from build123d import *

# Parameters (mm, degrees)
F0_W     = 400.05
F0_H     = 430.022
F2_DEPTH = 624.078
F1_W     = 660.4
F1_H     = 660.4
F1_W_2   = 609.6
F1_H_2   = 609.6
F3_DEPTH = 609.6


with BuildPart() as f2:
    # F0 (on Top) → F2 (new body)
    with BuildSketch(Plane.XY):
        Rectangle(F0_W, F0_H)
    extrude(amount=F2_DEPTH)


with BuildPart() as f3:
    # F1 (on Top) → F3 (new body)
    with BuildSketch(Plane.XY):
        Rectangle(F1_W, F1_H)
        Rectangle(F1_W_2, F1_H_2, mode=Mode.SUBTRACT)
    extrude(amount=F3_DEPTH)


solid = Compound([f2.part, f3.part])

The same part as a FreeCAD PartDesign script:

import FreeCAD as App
import Part
import Sketcher
Q = App.Units.Quantity

doc = App.newDocument("Part")
params = doc.addObject("Spreadsheet::Sheet", "Params")
for row, (alias, value) in enumerate([
    ("sketch1_width", "15.75 in"),
    ("sketch1_height", "16.93 in"),
    ("pad1_length", "24.57 in"),
    ("sketch2_width", "26 in"),
    ("sketch2_width2", "24 in"),
    ("pad2_length", "24 in"),
], start=1):
    params.set(f"A{row}", alias)
    params.set(f"B{row}", "=" + value)
    params.setAlias(f"B{row}", alias)

body = doc.addObject("PartDesign::Body", "Body")

# Sketch on XY plane
sketch1 = body.newObject("Sketcher::SketchObject", "Sketch")
sketch1.AttachmentSupport = (doc.getObject("XY_Plane"), [""])
sketch1.MapMode = "FlatFace"
sketch1.addGeometry(Part.LineSegment(App.Vector(-200, 215, 0), App.Vector(-200, -215, 0)), False)
sketch1.addGeometry(Part.LineSegment(App.Vector(-200, -215, 0), App.Vector(200, -215, 0)), False)
sketch1.addGeometry(Part.LineSegment(App.Vector(200, -215, 0), App.Vector(200, 215, 0)), False)
sketch1.addGeometry(Part.LineSegment(App.Vector(200, 215, 0), App.Vector(-200, 215, 0)), False)
sketch1.addConstraint(Sketcher.Constraint("Coincident", 0, 2, 1, 1))
sketch1.addConstraint(Sketcher.Constraint("Coincident", 1, 2, 2, 1))
sketch1.addConstraint(Sketcher.Constraint("Coincident", 2, 2, 3, 1))
sketch1.addConstraint(Sketcher.Constraint("Coincident", 3, 2, 0, 1))
sketch1.addConstraint(Sketcher.Constraint("Vertical", 0))
sketch1.addConstraint(Sketcher.Constraint("Horizontal", 1))
sketch1.addConstraint(Sketcher.Constraint("Vertical", 2))
sketch1.addConstraint(Sketcher.Constraint("Horizontal", 3))
sketch1.addConstraint(Sketcher.Constraint("Symmetric", 0, 2, 2, 2, -1, 1))
sketch1.addConstraint(Sketcher.Constraint("DistanceX", 1, 1, 1, 2, Q("15.75 in")))
sketch1.addConstraint(Sketcher.Constraint("DistanceY", 0, 2, 0, 1, Q("16.93 in")))
sketch1.setExpression("Constraints[9]", "Params.sketch1_width")
sketch1.setExpression("Constraints[10]", "Params.sketch1_height")
pad1 = body.newObject("PartDesign::Pad", "Pad")
pad1.Profile = sketch1
pad1.setExpression("Length", "Params.pad1_length")
body2 = doc.addObject("PartDesign::Body", "Body001")

# Sketch on XY plane
sketch2 = body2.newObject("Sketcher::SketchObject", "Sketch001")
sketch2.AttachmentSupport = (doc.getObject("XY_Plane001"), [""])
sketch2.MapMode = "FlatFace"
sketch2.addGeometry(Part.LineSegment(App.Vector(-330, 330, 0), App.Vector(-330, -330, 0)), False)
sketch2.addGeometry(Part.LineSegment(App.Vector(-330, -330, 0), App.Vector(330, -330, 0)), False)
sketch2.addGeometry(Part.LineSegment(App.Vector(330, -330, 0), App.Vector(330, 330, 0)), False)
sketch2.addGeometry(Part.LineSegment(App.Vector(330, 330, 0), App.Vector(-330, 330, 0)), False)
sketch2.addGeometry(Part.LineSegment(App.Vector(305, -305, 0), App.Vector(-305, -305, 0)), False)
sketch2.addGeometry(Part.LineSegment(App.Vector(-305, -305, 0), App.Vector(-305, 305, 0)), False)
sketch2.addGeometry(Part.LineSegment(App.Vector(-305, 305, 0), App.Vector(305, 305, 0)), False)
sketch2.addGeometry(Part.LineSegment(App.Vector(305, 305, 0), App.Vector(305, -305, 0)), False)
sketch2.addConstraint(Sketcher.Constraint("Coincident", 0, 2, 1, 1))
sketch2.addConstraint(Sketcher.Constraint("Coincident", 1, 2, 2, 1))
sketch2.addConstraint(Sketcher.Constraint("Coincident", 2, 2, 3, 1))
sketch2.addConstraint(Sketcher.Constraint("Coincident", 3, 2, 0, 1))
sketch2.addConstraint(Sketcher.Constraint("Coincident", 4, 2, 5, 1))
sketch2.addConstraint(Sketcher.Constraint("Coincident", 5, 2, 6, 1))
sketch2.addConstraint(Sketcher.Constraint("Coincident", 6, 2, 7, 1))
sketch2.addConstraint(Sketcher.Constraint("Coincident", 7, 2, 4, 1))
sketch2.addConstraint(Sketcher.Constraint("Vertical", 0))
sketch2.addConstraint(Sketcher.Constraint("Horizontal", 1))
sketch2.addConstraint(Sketcher.Constraint("Vertical", 2))
sketch2.addConstraint(Sketcher.Constraint("Horizontal", 3))
sketch2.addConstraint(Sketcher.Constraint("Horizontal", 4))
sketch2.addConstraint(Sketcher.Constraint("Vertical", 5))
sketch2.addConstraint(Sketcher.Constraint("Horizontal", 6))
sketch2.addConstraint(Sketcher.Constraint("Vertical", 7))
sketch2.addConstraint(Sketcher.Constraint("Symmetric", 0, 2, 2, 2, -1, 1))
sketch2.addConstraint(Sketcher.Constraint("Symmetric", 4, 2, 6, 2, -1, 1))
sketch2.addConstraint(Sketcher.Constraint("Equal", 3, 0))
sketch2.addConstraint(Sketcher.Constraint("Equal", 6, 5))
sketch2.addConstraint(Sketcher.Constraint("DistanceX", 1, 1, 1, 2, Q("26 in")))
sketch2.addConstraint(Sketcher.Constraint("DistanceX", 4, 2, 4, 1, Q("24 in")))
sketch2.setExpression("Constraints[20]", "Params.sketch2_width")
sketch2.setExpression("Constraints[21]", "Params.sketch2_width2")
pad2 = body2.newObject("PartDesign::Pad", "Pad001")
pad2.Profile = sketch2
pad2.setExpression("Length", "Params.pad2_length")

doc.recompute()
